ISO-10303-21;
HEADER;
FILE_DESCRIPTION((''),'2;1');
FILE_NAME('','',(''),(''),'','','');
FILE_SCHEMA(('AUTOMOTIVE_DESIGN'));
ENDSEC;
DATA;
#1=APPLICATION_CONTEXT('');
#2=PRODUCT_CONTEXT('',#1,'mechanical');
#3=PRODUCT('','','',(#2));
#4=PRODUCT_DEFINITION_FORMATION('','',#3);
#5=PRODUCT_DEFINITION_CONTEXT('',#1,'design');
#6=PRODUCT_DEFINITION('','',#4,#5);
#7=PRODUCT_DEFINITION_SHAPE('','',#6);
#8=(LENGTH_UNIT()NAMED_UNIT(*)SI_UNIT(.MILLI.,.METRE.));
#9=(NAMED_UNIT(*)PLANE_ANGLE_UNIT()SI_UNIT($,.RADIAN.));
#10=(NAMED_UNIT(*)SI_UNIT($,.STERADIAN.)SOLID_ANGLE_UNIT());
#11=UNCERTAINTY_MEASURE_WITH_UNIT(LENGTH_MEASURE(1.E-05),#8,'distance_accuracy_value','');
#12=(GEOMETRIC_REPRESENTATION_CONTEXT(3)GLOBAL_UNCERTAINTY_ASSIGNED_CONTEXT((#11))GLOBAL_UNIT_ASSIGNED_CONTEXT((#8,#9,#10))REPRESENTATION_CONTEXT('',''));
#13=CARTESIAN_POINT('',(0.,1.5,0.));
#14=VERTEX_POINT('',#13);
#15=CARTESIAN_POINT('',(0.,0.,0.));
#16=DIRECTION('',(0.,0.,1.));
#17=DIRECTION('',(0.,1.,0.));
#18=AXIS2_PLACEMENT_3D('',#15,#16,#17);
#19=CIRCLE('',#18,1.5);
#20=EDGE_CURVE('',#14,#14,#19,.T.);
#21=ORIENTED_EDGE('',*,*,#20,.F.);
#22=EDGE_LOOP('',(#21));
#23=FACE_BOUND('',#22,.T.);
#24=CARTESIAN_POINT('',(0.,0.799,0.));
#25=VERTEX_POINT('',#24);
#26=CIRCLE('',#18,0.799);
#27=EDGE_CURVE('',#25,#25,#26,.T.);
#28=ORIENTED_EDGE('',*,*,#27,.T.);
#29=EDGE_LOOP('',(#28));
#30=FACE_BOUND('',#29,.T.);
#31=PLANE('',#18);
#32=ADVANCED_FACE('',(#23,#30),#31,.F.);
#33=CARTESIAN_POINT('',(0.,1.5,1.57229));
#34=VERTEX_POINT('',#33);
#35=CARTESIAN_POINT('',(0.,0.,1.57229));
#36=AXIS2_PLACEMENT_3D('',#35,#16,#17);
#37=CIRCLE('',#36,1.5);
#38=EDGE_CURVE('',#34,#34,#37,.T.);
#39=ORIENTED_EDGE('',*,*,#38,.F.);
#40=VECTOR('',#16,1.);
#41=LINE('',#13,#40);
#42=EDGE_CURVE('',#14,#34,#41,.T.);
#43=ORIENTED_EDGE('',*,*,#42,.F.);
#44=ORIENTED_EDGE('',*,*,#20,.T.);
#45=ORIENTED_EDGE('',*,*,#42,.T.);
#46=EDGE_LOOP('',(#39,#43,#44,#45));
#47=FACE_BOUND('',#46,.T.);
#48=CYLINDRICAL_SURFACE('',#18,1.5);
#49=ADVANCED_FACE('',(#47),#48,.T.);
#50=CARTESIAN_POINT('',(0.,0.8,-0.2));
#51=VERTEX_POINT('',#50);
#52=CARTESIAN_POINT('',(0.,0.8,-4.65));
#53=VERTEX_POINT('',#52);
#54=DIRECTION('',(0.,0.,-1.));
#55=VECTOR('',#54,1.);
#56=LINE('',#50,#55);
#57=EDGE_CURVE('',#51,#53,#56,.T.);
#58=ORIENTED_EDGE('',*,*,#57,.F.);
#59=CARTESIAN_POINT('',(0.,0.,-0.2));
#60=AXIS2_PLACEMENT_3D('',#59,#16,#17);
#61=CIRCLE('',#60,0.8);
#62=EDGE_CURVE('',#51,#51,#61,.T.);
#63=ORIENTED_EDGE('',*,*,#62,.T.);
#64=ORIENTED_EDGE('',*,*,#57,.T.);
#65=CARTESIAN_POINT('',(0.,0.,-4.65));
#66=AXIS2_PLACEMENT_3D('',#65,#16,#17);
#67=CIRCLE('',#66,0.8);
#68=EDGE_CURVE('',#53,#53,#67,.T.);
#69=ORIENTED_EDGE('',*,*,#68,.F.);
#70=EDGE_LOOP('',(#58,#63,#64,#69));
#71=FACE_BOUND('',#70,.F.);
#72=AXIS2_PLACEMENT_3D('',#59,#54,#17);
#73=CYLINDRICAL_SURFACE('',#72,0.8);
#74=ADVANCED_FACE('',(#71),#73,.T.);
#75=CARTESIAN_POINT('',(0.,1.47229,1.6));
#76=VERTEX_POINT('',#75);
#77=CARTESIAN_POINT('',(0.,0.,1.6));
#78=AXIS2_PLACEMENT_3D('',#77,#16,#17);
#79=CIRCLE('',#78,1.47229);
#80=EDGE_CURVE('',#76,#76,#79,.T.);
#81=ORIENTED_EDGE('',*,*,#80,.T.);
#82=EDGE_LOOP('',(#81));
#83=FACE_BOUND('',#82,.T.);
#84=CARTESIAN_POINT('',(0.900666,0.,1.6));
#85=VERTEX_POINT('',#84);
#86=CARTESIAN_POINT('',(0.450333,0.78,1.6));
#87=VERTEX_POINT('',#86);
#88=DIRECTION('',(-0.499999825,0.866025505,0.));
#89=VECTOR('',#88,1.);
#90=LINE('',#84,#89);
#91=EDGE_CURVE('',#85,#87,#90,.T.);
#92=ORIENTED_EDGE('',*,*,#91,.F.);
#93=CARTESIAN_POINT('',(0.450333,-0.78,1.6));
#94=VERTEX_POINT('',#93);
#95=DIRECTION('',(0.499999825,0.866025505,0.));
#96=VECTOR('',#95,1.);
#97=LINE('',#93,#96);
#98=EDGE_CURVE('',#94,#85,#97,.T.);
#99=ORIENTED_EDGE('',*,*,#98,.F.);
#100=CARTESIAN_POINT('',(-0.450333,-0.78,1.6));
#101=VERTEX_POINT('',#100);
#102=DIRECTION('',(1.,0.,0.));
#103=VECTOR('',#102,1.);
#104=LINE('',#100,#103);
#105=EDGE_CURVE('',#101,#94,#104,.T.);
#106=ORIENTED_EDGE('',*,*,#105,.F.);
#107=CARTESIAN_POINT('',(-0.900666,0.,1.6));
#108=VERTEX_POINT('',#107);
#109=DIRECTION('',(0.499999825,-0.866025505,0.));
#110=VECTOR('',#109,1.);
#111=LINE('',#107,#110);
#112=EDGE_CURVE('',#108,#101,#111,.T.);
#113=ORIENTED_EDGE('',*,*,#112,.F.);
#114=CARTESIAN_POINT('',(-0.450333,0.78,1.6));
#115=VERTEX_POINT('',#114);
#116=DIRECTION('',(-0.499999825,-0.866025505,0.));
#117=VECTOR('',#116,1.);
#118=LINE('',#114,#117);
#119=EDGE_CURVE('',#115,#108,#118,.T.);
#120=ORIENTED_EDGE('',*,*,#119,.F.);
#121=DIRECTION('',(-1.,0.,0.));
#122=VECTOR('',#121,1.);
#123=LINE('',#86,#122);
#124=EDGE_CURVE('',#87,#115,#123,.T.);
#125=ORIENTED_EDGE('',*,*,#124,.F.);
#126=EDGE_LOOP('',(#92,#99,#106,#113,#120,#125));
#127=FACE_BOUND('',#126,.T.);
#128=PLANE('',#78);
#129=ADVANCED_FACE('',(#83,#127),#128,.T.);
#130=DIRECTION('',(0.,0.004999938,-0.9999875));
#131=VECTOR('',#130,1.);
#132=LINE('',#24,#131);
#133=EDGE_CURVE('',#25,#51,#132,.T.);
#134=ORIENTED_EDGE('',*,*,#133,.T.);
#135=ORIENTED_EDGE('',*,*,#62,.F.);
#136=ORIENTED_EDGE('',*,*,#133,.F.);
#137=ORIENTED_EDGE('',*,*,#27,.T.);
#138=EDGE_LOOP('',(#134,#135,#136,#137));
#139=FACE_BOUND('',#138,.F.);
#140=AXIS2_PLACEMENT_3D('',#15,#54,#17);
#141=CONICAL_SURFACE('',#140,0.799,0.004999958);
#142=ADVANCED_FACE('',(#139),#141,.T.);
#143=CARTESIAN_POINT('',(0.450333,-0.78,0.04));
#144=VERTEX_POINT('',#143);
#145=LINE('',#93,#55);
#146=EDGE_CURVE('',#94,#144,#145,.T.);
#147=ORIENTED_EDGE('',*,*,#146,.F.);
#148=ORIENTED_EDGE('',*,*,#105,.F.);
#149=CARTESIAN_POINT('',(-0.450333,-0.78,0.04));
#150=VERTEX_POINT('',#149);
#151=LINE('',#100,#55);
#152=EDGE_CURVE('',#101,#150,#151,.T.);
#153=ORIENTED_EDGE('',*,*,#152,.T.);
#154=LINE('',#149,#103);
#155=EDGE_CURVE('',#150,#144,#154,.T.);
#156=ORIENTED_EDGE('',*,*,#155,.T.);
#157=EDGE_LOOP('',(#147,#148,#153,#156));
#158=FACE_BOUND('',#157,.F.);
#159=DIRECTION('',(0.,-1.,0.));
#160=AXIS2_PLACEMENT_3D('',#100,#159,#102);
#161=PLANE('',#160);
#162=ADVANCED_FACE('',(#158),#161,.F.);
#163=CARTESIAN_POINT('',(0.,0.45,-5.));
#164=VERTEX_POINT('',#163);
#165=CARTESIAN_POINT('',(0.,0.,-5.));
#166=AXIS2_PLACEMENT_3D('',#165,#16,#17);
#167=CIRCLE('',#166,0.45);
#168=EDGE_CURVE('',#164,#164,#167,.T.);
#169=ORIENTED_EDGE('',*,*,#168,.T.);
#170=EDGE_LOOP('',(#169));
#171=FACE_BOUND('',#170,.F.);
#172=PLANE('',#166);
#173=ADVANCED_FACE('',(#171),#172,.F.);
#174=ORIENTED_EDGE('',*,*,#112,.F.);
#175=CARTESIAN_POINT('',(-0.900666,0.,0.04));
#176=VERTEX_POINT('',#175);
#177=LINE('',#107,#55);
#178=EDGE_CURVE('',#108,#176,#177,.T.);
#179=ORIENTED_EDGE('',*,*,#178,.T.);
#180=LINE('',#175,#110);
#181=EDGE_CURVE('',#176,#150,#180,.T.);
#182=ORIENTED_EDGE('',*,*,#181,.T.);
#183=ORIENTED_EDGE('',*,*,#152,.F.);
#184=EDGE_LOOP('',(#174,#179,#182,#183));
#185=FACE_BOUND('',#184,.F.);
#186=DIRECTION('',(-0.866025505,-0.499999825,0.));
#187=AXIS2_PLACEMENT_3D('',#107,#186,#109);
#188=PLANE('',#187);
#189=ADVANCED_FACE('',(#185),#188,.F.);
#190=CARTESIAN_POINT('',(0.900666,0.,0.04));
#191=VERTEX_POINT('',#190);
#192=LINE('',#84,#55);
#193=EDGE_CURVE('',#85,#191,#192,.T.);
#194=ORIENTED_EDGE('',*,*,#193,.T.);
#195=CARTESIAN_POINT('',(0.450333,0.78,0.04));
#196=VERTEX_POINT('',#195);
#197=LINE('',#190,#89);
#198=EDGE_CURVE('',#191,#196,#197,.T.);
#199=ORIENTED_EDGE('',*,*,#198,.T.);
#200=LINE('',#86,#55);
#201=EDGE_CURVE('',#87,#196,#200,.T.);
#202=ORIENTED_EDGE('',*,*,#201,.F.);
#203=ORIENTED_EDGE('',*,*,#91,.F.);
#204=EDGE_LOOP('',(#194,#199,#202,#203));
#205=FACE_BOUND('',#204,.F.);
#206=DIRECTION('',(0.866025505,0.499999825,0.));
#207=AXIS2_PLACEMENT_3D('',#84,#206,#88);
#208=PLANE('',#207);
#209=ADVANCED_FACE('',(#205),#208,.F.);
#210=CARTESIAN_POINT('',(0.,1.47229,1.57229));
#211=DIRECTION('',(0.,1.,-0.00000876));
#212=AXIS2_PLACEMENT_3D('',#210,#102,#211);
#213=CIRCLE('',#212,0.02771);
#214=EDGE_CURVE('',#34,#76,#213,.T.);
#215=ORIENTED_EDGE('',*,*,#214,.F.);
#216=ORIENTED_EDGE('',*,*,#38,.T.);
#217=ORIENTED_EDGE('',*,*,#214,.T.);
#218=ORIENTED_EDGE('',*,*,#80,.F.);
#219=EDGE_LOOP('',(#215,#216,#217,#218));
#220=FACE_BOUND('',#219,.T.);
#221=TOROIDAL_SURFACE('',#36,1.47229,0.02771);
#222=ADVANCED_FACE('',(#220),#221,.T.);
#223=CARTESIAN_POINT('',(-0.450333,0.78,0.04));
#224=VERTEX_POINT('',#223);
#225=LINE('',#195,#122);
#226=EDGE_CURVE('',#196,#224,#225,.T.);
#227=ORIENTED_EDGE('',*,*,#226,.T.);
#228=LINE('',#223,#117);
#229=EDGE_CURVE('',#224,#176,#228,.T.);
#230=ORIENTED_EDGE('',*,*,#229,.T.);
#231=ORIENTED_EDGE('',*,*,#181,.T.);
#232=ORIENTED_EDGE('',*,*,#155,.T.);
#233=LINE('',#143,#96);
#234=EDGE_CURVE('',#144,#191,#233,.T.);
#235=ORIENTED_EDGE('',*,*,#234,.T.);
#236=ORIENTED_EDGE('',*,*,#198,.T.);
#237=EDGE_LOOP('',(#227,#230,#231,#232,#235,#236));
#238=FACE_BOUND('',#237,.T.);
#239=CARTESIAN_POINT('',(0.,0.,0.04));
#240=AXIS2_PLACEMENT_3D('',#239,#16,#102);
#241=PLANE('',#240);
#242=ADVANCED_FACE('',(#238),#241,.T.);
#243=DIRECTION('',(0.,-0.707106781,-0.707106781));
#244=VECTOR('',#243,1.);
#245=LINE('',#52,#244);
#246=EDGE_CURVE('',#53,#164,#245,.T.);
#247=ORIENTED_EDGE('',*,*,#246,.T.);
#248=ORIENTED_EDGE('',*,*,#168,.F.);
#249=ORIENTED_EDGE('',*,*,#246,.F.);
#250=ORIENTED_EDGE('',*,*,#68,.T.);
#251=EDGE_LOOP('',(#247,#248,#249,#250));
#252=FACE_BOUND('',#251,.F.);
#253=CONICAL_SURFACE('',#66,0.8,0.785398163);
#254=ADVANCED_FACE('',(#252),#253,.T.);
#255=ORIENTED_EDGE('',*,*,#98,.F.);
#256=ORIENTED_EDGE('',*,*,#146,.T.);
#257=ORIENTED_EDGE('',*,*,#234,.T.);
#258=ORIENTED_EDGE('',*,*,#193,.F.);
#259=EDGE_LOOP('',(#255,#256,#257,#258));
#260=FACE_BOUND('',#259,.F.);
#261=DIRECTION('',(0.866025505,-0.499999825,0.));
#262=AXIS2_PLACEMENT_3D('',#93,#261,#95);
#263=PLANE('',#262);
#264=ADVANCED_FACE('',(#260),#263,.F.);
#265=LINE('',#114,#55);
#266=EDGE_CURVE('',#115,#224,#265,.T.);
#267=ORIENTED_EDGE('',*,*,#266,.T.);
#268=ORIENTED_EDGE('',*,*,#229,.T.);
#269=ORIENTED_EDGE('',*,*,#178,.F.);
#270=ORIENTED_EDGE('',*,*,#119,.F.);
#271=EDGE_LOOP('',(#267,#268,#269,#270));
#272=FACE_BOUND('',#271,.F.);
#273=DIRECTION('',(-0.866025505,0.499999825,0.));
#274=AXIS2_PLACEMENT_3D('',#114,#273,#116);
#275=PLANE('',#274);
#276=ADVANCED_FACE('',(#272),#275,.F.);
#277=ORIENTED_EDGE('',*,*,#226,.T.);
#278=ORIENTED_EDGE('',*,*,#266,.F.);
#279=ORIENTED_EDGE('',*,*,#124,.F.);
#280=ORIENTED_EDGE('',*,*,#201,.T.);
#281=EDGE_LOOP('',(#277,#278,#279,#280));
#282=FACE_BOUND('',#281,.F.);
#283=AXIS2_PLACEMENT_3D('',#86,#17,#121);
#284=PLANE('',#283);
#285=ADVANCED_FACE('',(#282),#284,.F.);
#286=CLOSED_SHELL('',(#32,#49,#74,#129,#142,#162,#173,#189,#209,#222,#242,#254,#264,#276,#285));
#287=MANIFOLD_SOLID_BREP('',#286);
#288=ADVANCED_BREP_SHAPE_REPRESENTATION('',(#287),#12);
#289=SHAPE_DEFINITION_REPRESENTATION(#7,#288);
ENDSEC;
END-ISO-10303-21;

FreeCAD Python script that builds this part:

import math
import FreeCAD as App
import Part
import Sketcher

V = App.Vector
Q = App.Units.Quantity

doc = App.newDocument("Part")
body = doc.addObject("PartDesign::Body", "Body")

# Sketch on YZ plane
sketch1 = body.newObject("Sketcher::SketchObject", "Sketch")
sketch1.AttachmentSupport = (doc.getObject("YZ_Plane"), [""])
sketch1.MapMode = "FlatFace"
sketch1.addGeometry(Part.LineSegment(V(0.799, 0, 0), V(1.5, 0, 0)), False)
sketch1.addGeometry(Part.LineSegment(V(1.5, 0, 0), V(1.5, 1.572, 0)), False)
sketch1.addGeometry(Part.ArcOfCircle(Part.Circle(V(1.472, 1.572, 0), V(0, 0, 1), 0.028), math.radians(0), math.radians(90)), False)
sketch1.addGeometry(Part.LineSegment(V(1.472, 1.6, 0), V(0, 1.6, 0)), False)
sketch1.addGeometry(Part.LineSegment(V(0, 1.6, 0), V(0, -5, 0)), False)
sketch1.addGeometry(Part.LineSegment(V(0, -5, 0), V(0.45, -5, 0)), False)
sketch1.addGeometry(Part.LineSegment(V(0.45, -5, 0), V(0.8, -4.65, 0)), False)
sketch1.addGeometry(Part.LineSegment(V(0.8, -4.65, 0), V(0.8, -0.2, 0)), False)
sketch1.addGeometry(Part.LineSegment(V(0.8, -0.2, 0), V(0.799, 0, 0)), False)
sketch1.addConstraint(Sketcher.Constraint("Coincident", 0, 2, 1, 1))
sketch1.addConstraint(Sketcher.Constraint("Coincident", 1, 2, 2, 1))
sketch1.addConstraint(Sketcher.Constraint("Coincident", 2, 2, 3, 1))
sketch1.addConstraint(Sketcher.Constraint("Coincident", 3, 2, 4, 1))
sketch1.addConstraint(Sketcher.Constraint("Coincident", 4, 2, 5, 1))
sketch1.addConstraint(Sketcher.Constraint("Coincident", 5, 2, 6, 1))
sketch1.addConstraint(Sketcher.Constraint("Coincident", 6, 2, 7, 1))
sketch1.addConstraint(Sketcher.Constraint("Coincident", 7, 2, 8, 1))
sketch1.addConstraint(Sketcher.Constraint("Coincident", 8, 2, 0, 1))
sketch1.addConstraint(Sketcher.Constraint("Horizontal", 0))
sketch1.addConstraint(Sketcher.Constraint("Vertical", 1))
sketch1.addConstraint(Sketcher.Constraint("Horizontal", 3))
sketch1.addConstraint(Sketcher.Constraint("Vertical", 4))
sketch1.addConstraint(Sketcher.Constraint("Horizontal", 5))
sketch1.addConstraint(Sketcher.Constraint("Vertical", 7))
sketch1.addConstraint(Sketcher.Constraint("PointOnObject", 0, 2, -1))
sketch1.addConstraint(Sketcher.Constraint("PointOnObject", 3, 2, -2))
sketch1.addConstraint(Sketcher.Constraint("Horizontal", 2, 3, 1, 2))
sketch1.addConstraint(Sketcher.Constraint("Angle", 6, Q("45 deg")))
sketch1.addConstraint(Sketcher.Constraint("DistanceY", 4, 2, 4, 1, 6.6))
sketch1.addConstraint(Sketcher.Constraint("DistanceY", 4, 2, -1, 1, 5.0))
sketch1.addConstraint(Sketcher.Constraint("DistanceX", 5, 1, 5, 2, 0.45))
sketch1.addConstraint(Sketcher.Constraint("DistanceY", 7, 1, 7, 2, 4.45))
sketch1.addConstraint(Sketcher.Constraint("DistanceX", -1, 1, 0, 2, 1.5))
sketch1.addConstraint(Sketcher.Constraint("DistanceX", -1, 1, 6, 2, 0.8))
sketch1.addConstraint(Sketcher.Constraint("DistanceX", 0, 1, 0, 2, 0.701))
sketch1.addConstraint(Sketcher.Constraint("Radius", 2, 0.02771))
sketch1.addConstraint(Sketcher.Constraint("DistanceX", 3, 2, 3, 1, 1.47229))
revolution = body.newObject("PartDesign::Revolution", "Revolution")
revolution.Profile = sketch1
revolution.ReferenceAxis = (sketch1, ["V_Axis"])
revolution.Angle = 360

# Sketch on XY plane
sketch2 = body.newObject("Sketcher::SketchObject", "Sketch001")
sketch2.AttachmentSupport = (doc.getObject("XY_Plane"), [""])
sketch2.MapMode = "FlatFace"
sketch2.AttachmentOffset = App.Placement(V(0, 0, 1.6), App.Rotation())
sketch2.addGeometry(Part.LineSegment(V(0.9, 0, 0), V(0.5, 0.8, 0)), False)
sketch2.addGeometry(Part.LineSegment(V(0.5, 0.8, 0), V(-0.5, 0.8, 0)), False)
sketch2.addGeometry(Part.LineSegment(V(-0.5, 0.8, 0), V(-0.9, 0, 0)), False)
sketch2.addGeometry(Part.LineSegment(V(-0.9, 0, 0), V(-0.5, -0.8, 0)), False)
sketch2.addGeometry(Part.LineSegment(V(-0.5, -0.8, 0), V(0.5, -0.8, 0)), False)
sketch2.addGeometry(Part.LineSegment(V(0.5, -0.8, 0), V(0.9, 0, 0)), False)
sketch2.addConstraint(Sketcher.Constraint("Coincident", 0, 2, 1, 1))
sketch2.addConstraint(Sketcher.Constraint("Coincident", 1, 2, 2, 1))
sketch2.addConstraint(Sketcher.Constraint("Coincident", 2, 2, 3, 1))
sketch2.addConstraint(Sketcher.Constraint("Coincident", 3, 2, 4, 1))
sketch2.addConstraint(Sketcher.Constraint("Coincident", 4, 2, 5, 1))
sketch2.addConstraint(Sketcher.Constraint("Coincident", 5, 2, 0, 1))
sketch2.addConstraint(Sketcher.Constraint("Horizontal", 1))
sketch2.addConstraint(Sketcher.Constraint("Horizontal", 4))
sketch2.addConstraint(Sketcher.Constraint("Symmetric", 0, 2, 3, 2, -1, 1))
sketch2.addConstraint(Sketcher.Constraint("Symmetric", 2, 2, 5, 2, -1, 1))
sketch2.addConstraint(Sketcher.Constraint("PointOnObject", 2, 2, -1))
sketch2.addConstraint(Sketcher.Constraint("Parallel", 2, 5))
sketch2.addConstraint(Sketcher.Constraint("Vertical", 1, 2, 3, 2))
sketch2.addConstraint(Sketcher.Constraint("Angle", 0, Q("119.999988 deg")))
sketch2.addConstraint(Sketcher.Constraint("DistanceY", -1, 1, 0, 2, 0.78))
sketch2.addConstraint(Sketcher.Constraint("DistanceX", 2, 2, 0, 2, 1.350999))
pocket1 = body.newObject("PartDesign::Pocket", "Pocket")
pocket1.Profile = sketch2
pocket1.Length = 1.56

doc.recompute()
